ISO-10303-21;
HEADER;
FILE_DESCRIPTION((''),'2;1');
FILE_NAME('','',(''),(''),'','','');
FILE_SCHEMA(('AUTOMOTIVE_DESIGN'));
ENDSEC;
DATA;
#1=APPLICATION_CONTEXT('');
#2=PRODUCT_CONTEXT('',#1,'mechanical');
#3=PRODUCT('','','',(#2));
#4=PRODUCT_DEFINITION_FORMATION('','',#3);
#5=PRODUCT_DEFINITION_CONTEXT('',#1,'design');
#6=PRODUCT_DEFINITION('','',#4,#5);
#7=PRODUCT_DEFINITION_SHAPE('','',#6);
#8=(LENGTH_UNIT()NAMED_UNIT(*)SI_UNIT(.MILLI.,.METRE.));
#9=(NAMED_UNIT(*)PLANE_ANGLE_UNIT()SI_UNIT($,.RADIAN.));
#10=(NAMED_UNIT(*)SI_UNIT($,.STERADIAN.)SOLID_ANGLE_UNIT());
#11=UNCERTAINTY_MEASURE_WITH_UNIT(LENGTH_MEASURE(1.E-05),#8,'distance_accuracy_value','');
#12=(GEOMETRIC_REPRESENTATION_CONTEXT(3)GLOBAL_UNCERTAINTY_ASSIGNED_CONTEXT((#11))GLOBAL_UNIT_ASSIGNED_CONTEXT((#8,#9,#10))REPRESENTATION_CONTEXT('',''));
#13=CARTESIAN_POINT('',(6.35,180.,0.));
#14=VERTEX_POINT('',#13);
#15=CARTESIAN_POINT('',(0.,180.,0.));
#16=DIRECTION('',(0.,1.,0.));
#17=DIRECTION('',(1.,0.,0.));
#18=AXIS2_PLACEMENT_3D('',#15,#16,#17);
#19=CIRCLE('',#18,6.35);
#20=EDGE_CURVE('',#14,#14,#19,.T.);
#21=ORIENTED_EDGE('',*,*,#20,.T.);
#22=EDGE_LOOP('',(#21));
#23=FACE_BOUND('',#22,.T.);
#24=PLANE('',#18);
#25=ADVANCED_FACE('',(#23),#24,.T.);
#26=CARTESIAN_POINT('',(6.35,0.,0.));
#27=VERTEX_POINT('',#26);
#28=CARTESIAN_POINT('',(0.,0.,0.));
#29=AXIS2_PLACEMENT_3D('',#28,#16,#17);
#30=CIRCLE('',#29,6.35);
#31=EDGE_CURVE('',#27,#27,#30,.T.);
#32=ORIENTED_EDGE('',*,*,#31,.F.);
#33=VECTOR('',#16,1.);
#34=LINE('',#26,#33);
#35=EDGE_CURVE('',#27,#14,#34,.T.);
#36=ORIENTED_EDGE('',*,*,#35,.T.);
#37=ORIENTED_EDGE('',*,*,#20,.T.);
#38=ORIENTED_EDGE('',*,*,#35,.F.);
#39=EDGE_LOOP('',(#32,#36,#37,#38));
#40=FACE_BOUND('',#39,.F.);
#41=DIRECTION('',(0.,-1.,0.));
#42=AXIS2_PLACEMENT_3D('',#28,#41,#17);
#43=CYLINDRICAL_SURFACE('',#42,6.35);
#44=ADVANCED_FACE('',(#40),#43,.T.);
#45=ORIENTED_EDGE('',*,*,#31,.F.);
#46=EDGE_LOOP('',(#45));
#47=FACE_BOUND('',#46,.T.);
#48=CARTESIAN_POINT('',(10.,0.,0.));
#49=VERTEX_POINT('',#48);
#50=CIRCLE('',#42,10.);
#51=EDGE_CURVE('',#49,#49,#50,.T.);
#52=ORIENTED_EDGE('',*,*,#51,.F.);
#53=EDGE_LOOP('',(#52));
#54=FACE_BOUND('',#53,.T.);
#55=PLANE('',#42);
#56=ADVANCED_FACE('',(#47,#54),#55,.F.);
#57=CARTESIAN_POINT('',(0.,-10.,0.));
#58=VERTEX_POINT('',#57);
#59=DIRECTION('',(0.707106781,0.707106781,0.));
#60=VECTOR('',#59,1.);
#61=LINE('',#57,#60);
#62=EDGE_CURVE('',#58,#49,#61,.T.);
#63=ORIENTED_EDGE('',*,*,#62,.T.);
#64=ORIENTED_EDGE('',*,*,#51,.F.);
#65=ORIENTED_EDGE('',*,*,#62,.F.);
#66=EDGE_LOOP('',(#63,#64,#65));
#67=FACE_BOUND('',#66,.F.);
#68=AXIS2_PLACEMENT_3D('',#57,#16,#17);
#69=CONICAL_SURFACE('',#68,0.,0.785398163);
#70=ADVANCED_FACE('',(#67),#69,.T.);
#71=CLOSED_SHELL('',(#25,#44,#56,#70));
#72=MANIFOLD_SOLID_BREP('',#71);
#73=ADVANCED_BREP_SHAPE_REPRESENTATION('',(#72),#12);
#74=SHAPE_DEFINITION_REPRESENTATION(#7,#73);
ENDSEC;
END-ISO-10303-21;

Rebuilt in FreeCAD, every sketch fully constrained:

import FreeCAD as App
import Part
import Sketcher

doc = App.newDocument("Part")
body = doc.addObject("PartDesign::Body", "Body")

# Sketch on XY plane
sketch1 = body.newObject("Sketcher::SketchObject", "Sketch")
sketch1.AttachmentSupport = (doc.getObject("XY_Plane"), [""])
sketch1.MapMode = "FlatFace"
sketch1.addGeometry(Part.LineSegment(App.Vector(10, 0, 0), App.Vector(0, 0, 0)), False)
sketch1.addGeometry(Part.LineSegment(App.Vector(0, 0, 0), App.Vector(0, -10, 0)), False)
sketch1.addGeometry(Part.LineSegment(App.Vector(0, -10, 0), App.Vector(10, 0, 0)), False)
sketch1.addConstraint(Sketcher.Constraint("Coincident", 0, 2, 1, 1))
sketch1.addConstraint(Sketcher.Constraint("Coincident", 1, 2, 2, 1))
sketch1.addConstraint(Sketcher.Constraint("Coincident", 2, 2, 0, 1))
sketch1.addConstraint(Sketcher.Constraint("Horizontal", 0))
sketch1.addConstraint(Sketcher.Constraint("Vertical", 1))
sketch1.addConstraint(Sketcher.Constraint("Coincident", 0, 2, -1, 1))
sketch1.addConstraint(Sketcher.Constraint("Equal", 0, 1))
sketch1.addConstraint(Sketcher.Constraint("DistanceX", 0, 2, 0, 1, 10.0))
revolution = body.newObject("PartDesign::Revolution", "Revolution")
revolution.Profile = sketch1
revolution.ReferenceAxis = (sketch1, ["V_Axis"])
revolution.Angle = 360

# Sketch on XZ plane
sketch2 = body.newObject("Sketcher::SketchObject", "Sketch001")
sketch2.AttachmentSupport = (doc.getObject("XZ_Plane"), [""])
sketch2.MapMode = "FlatFace"
sketch2.addGeometry(Part.Circle(App.Vector(0, 0, 0), App.Vector(0, 0, 1), 6), False)
sketch2.addConstraint(Sketcher.Constraint("Coincident", 0, 3, -1, 1))
sketch2.addConstraint(Sketcher.Constraint("Diameter", 0, 12.7))
pad1 = body.newObject("PartDesign::Pad", "Pad")
pad1.Profile = sketch2
pad1.Length = 180
pad1.Reversed = True

doc.recompute()
